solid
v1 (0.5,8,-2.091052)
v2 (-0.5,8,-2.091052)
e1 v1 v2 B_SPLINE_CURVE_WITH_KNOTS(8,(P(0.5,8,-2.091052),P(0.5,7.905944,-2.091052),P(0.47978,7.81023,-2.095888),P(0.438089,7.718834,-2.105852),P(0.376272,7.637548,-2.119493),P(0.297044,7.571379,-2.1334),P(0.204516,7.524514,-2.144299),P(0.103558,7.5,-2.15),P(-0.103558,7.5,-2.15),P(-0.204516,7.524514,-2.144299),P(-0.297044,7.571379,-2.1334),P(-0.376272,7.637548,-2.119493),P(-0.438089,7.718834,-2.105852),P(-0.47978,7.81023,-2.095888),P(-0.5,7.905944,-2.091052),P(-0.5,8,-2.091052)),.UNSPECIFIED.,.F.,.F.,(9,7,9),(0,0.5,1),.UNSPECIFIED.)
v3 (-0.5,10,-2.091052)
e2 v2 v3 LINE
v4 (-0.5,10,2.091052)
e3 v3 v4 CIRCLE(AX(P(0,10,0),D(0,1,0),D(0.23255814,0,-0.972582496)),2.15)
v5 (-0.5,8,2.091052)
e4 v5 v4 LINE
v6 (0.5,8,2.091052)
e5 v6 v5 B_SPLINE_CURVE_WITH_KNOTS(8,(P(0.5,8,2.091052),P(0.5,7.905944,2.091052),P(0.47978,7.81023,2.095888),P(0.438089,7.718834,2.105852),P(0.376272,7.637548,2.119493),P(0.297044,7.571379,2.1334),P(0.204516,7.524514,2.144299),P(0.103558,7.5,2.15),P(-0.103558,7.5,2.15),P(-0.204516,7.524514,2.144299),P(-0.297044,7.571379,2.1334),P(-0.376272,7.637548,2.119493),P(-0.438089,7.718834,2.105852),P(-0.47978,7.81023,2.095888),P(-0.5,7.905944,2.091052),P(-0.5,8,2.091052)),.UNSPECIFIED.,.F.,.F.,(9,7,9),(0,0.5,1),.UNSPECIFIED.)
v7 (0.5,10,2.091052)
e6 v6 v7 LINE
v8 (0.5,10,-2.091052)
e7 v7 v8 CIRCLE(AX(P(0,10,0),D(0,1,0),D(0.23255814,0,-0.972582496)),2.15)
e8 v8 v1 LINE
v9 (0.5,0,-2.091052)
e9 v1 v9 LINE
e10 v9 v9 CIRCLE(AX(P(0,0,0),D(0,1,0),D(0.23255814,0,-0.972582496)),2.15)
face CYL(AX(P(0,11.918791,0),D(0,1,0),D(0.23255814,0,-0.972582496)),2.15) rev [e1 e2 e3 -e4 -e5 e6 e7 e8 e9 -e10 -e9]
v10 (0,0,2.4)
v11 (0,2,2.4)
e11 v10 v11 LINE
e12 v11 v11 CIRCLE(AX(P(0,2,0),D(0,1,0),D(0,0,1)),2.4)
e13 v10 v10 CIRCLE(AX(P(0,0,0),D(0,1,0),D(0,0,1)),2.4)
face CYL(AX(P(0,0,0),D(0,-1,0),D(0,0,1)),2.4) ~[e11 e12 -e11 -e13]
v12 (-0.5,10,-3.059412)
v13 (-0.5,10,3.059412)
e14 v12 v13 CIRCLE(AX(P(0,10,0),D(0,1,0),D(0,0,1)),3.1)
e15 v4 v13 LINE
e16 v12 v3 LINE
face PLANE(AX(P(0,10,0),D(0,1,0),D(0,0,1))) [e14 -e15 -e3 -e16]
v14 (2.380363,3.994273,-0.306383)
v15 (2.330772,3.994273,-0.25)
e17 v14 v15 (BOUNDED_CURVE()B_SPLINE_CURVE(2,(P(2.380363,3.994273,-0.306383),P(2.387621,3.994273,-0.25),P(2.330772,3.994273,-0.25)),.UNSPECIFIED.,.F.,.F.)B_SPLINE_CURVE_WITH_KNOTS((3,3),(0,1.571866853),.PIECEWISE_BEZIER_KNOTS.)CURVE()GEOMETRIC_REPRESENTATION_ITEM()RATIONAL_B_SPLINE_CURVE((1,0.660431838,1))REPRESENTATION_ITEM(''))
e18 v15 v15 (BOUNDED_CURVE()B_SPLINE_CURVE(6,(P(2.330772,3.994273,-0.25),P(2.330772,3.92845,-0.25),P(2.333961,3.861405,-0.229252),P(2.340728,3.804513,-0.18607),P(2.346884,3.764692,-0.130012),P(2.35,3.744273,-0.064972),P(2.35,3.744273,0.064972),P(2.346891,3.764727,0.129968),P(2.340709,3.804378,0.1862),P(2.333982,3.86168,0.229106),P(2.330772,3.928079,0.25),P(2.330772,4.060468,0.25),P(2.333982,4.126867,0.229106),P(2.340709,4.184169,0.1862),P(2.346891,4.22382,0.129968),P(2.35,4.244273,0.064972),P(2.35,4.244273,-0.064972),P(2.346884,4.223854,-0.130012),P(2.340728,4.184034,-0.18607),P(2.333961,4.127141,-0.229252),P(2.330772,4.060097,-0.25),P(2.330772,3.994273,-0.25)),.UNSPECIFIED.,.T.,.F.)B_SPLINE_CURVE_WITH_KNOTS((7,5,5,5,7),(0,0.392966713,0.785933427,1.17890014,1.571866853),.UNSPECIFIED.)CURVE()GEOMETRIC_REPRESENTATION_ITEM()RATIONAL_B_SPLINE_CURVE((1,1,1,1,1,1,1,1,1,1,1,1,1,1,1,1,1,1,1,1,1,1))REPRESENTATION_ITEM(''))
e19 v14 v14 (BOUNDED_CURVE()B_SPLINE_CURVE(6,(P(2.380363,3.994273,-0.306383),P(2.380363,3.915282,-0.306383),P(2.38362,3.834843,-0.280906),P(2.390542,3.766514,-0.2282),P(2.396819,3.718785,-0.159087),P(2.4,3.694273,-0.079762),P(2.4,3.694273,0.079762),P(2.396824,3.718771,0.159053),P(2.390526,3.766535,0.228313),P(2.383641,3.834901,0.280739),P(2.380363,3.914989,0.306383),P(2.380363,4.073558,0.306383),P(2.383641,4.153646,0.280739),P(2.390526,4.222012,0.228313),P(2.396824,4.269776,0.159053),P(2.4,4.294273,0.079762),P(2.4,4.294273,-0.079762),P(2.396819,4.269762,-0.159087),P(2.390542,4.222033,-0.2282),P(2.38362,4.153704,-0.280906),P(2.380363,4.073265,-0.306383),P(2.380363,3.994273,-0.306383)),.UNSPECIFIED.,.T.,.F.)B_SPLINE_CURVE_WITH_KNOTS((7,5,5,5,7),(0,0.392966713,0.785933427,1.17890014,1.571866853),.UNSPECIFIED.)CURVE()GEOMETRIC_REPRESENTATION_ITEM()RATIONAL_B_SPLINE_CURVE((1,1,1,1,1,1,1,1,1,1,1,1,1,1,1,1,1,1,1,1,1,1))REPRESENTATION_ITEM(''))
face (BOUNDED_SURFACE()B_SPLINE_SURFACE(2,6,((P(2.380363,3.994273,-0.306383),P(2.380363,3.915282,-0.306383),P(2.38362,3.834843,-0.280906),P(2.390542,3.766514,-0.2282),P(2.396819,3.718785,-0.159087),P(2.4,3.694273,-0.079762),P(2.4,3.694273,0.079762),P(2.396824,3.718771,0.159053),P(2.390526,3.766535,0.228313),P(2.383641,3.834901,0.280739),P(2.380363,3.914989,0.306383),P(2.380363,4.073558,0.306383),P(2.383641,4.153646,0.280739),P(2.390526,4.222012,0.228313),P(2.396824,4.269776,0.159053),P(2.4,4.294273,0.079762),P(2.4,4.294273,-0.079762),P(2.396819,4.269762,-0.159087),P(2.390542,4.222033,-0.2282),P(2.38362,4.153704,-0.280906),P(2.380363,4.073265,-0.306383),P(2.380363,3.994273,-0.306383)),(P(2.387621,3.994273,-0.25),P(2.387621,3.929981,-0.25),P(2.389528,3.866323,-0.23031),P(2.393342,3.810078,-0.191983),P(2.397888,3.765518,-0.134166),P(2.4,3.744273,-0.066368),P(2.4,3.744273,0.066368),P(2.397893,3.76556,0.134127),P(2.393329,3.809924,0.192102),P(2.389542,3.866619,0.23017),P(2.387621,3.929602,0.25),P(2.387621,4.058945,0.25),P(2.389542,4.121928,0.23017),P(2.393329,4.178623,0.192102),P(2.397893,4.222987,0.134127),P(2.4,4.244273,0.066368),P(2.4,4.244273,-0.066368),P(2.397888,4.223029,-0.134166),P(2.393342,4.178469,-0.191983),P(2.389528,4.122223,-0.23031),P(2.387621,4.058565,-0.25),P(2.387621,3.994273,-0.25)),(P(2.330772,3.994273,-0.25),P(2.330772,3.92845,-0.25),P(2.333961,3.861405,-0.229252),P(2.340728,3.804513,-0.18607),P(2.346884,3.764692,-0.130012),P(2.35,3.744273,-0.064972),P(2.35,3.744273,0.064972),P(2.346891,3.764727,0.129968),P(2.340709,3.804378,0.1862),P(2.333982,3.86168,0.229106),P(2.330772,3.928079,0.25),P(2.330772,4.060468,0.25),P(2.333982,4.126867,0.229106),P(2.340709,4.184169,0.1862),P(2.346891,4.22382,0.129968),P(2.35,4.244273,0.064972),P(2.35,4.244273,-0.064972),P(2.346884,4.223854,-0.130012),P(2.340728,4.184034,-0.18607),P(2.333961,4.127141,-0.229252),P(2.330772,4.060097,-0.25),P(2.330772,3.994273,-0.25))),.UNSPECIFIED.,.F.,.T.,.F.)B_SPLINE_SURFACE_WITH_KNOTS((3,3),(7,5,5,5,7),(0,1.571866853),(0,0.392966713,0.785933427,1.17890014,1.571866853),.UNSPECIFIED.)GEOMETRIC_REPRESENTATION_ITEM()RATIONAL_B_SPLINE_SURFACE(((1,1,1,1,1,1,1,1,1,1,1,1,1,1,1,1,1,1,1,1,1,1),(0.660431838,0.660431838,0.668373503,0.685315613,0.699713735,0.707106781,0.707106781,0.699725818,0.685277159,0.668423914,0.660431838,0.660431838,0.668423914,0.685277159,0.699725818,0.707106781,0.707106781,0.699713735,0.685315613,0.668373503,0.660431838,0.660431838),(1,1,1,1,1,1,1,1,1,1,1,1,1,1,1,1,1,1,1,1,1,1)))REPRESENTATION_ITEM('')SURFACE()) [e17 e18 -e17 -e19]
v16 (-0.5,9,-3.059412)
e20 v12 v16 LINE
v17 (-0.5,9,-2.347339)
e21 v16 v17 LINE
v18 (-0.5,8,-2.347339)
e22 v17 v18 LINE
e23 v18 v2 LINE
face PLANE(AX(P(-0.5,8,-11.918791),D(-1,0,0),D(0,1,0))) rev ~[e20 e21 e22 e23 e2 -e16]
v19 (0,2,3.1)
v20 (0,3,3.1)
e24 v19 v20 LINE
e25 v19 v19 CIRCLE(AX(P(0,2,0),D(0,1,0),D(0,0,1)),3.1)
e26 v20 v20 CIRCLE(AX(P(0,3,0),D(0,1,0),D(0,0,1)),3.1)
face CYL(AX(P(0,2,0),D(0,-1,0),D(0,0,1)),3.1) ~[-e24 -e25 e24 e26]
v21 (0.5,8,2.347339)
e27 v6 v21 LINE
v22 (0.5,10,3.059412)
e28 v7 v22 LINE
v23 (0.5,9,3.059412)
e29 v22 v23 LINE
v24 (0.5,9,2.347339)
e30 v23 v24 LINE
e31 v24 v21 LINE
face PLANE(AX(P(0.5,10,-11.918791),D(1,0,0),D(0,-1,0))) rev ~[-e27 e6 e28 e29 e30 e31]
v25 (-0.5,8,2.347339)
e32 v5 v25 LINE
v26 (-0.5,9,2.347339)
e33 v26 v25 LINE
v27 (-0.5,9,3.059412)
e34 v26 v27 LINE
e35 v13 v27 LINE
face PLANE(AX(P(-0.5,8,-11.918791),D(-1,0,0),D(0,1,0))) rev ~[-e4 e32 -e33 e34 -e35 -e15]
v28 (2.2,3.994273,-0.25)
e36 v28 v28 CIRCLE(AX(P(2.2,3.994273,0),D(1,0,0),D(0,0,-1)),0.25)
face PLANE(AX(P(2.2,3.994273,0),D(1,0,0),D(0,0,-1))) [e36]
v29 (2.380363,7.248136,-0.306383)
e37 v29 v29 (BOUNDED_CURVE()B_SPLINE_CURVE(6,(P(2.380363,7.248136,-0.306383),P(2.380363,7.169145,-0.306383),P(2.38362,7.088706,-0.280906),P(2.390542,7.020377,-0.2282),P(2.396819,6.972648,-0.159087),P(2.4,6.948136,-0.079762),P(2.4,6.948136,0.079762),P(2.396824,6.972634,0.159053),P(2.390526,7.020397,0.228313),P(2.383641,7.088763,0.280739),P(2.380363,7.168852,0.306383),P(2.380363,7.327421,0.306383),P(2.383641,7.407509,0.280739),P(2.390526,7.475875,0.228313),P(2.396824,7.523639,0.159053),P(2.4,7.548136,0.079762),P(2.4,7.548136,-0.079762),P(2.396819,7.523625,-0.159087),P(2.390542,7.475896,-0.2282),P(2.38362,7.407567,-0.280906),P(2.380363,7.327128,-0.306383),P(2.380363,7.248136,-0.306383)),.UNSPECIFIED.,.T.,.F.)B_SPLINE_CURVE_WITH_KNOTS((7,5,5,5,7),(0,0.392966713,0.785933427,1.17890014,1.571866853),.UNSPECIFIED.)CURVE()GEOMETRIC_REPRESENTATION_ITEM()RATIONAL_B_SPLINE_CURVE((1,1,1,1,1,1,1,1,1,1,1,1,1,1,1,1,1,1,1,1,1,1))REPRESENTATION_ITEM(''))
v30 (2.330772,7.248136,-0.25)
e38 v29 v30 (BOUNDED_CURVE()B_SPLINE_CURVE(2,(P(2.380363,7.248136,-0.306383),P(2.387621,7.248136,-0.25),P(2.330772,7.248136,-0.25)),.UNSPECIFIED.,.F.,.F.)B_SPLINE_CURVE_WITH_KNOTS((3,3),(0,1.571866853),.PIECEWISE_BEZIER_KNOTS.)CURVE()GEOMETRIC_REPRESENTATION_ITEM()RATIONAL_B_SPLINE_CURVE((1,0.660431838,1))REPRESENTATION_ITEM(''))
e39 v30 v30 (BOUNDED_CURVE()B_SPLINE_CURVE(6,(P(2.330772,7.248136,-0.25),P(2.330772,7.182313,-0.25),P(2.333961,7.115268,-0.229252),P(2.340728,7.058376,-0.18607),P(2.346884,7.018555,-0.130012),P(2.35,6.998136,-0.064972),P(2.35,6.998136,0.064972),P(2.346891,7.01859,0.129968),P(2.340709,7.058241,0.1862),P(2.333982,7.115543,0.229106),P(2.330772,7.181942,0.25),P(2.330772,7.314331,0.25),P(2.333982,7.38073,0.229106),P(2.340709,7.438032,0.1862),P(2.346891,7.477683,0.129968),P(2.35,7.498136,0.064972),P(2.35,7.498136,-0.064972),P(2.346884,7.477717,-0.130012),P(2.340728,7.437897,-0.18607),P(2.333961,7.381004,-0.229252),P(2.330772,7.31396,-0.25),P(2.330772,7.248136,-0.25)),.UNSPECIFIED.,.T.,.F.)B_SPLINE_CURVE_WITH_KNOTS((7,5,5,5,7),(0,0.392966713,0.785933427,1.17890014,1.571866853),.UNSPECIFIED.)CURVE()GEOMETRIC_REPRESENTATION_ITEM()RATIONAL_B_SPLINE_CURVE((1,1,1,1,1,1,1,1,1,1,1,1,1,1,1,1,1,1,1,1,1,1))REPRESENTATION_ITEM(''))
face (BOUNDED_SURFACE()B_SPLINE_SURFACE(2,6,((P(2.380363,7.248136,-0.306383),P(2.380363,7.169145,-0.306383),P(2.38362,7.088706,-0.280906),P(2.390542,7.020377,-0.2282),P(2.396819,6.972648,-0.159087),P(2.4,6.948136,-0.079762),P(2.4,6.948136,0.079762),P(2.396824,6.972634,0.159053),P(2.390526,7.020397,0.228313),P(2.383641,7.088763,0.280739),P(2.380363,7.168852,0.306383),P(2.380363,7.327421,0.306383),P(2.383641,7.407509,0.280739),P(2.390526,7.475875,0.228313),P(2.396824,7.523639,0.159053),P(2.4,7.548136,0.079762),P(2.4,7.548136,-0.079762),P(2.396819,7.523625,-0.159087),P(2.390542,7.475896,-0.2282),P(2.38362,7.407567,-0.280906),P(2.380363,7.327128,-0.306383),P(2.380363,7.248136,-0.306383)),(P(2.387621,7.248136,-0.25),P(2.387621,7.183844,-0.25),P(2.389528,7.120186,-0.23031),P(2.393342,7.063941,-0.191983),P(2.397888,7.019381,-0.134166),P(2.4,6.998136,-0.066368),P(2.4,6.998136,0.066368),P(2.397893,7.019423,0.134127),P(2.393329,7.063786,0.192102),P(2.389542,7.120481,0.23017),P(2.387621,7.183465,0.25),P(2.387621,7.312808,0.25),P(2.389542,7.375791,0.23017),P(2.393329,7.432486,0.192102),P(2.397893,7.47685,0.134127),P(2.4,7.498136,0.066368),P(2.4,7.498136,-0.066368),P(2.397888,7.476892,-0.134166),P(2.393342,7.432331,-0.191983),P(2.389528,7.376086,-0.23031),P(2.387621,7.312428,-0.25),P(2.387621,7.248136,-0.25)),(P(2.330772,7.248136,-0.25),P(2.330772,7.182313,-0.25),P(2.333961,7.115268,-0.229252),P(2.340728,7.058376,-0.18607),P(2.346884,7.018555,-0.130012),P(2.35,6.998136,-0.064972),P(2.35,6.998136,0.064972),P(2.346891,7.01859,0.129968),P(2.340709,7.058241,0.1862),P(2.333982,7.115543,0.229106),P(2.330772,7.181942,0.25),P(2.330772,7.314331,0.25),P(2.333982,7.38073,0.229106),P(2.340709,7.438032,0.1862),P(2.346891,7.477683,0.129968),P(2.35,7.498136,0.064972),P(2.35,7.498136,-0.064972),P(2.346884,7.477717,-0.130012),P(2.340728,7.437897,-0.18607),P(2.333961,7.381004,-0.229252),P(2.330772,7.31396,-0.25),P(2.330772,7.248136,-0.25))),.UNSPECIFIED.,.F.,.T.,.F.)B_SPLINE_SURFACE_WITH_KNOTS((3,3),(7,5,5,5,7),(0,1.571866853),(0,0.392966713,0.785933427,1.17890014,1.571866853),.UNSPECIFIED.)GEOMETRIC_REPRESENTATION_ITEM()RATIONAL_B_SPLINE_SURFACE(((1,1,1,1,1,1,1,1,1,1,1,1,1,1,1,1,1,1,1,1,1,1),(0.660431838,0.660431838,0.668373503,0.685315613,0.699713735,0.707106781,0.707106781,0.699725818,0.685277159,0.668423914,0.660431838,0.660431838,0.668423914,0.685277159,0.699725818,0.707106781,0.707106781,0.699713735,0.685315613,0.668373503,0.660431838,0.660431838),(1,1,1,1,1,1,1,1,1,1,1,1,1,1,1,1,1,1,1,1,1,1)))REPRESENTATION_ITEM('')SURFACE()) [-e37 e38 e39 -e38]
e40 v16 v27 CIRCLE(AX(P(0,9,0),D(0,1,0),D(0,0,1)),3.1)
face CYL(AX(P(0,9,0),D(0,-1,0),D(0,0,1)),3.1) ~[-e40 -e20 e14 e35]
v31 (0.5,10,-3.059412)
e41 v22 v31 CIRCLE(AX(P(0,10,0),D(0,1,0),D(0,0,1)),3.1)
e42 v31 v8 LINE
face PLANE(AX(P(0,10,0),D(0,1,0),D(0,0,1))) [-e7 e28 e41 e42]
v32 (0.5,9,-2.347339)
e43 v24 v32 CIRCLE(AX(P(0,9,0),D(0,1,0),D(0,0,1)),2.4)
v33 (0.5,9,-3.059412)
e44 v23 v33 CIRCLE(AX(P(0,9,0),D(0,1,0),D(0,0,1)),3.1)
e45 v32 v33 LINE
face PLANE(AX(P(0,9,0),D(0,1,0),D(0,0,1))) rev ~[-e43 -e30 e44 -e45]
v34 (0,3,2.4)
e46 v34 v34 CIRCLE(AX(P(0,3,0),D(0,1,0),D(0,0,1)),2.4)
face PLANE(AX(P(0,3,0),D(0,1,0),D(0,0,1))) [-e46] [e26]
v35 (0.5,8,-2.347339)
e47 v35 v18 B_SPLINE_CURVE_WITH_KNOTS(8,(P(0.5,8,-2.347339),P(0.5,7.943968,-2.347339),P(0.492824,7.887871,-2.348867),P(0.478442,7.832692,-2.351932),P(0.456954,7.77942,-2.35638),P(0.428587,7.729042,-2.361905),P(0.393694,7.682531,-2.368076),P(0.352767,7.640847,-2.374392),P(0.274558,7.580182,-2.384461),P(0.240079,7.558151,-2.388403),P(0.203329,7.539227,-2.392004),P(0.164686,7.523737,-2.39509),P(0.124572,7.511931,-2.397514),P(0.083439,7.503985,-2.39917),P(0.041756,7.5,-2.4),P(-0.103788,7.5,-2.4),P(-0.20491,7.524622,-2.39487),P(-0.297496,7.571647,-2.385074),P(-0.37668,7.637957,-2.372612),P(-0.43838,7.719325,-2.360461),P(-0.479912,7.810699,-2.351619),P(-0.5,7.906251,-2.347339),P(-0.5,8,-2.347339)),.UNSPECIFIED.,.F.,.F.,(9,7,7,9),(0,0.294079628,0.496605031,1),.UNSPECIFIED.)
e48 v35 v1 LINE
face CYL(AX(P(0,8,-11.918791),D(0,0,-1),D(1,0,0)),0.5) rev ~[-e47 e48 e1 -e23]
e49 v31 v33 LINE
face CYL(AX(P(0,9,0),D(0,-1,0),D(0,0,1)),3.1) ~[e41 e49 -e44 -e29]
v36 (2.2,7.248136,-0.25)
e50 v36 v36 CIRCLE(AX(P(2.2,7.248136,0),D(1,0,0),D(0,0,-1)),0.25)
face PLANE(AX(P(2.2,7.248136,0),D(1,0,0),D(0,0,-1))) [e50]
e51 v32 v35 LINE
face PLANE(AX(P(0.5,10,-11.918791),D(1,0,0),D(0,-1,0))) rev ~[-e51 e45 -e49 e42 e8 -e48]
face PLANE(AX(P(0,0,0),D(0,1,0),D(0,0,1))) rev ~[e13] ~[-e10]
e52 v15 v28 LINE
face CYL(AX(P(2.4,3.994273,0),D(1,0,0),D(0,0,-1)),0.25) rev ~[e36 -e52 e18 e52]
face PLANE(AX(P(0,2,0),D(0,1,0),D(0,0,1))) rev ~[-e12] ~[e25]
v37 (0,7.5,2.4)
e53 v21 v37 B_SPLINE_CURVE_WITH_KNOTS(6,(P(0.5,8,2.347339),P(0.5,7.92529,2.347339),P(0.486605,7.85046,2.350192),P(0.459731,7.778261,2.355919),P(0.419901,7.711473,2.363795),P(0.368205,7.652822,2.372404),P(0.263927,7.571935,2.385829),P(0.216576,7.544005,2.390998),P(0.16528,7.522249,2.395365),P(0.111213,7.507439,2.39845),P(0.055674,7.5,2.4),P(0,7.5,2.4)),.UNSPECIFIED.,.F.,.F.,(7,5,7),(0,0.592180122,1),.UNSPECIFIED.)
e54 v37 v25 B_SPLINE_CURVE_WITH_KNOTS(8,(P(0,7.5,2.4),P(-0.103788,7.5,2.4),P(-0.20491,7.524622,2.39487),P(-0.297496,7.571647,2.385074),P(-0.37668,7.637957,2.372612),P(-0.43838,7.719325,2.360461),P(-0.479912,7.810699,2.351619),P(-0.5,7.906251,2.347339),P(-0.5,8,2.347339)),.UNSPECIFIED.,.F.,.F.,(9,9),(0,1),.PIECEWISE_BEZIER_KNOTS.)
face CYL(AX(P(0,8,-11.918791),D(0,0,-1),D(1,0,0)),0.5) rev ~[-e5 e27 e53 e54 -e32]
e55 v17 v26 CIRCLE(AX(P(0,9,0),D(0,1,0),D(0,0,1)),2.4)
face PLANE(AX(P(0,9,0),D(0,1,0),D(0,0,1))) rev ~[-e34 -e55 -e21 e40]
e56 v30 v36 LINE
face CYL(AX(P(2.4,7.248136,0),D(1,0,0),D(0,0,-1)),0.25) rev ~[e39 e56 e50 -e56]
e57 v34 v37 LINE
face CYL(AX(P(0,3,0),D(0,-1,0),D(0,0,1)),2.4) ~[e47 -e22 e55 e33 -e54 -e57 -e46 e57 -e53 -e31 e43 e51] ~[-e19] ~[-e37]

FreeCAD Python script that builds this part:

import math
import FreeCAD as App
import Part
import Sketcher
from FreeCAD import Vector


def edges_at(feature, points):
    """Names of the edges that pass closest to the given points."""
    edges = feature.Shape.Edges
    near = lambda p: min(range(len(edges)), key=lambda i: edges[i].distToShape(Part.Vertex(*p))[0])
    return sorted({f"Edge{near(p) + 1}" for p in points})

doc = App.newDocument("Part")
body = doc.addObject("PartDesign::Body", "Body")

# Sketch on XZ plane
sketch1 = body.newObject("Sketcher::SketchObject", "Sketch")
sketch1.AttachmentSupport = (doc.getObject("XZ_Plane"), [""])
sketch1.MapMode = "FlatFace"
sketch1.addGeometry(Part.Circle(Vector(0, 0, 0), Vector(0, 0, 1), 2.4), False)
sketch1.addConstraint([
    Sketcher.Constraint("Coincident", 0, 3, -1, 1),
    Sketcher.Constraint("Diameter", 0, 4.8),
])
pad1 = body.newObject("PartDesign::Pad", "Pad")
pad1.Profile = sketch1
pad1.Length = 2
pad1.Reversed = True

# Sketch on XZ plane
sketch2 = body.newObject("Sketcher::SketchObject", "Sketch001")
sketch2.AttachmentSupport = (doc.getObject("XZ_Plane"), [""])
sketch2.MapMode = "FlatFace"
sketch2.AttachmentOffset = App.Placement(Vector(0, 0, -2), App.Rotation())
sketch2.addGeometry(Part.Circle(Vector(0, 0, 0), Vector(0, 0, 1), 3.1), False)
sketch2.addConstraint([
    Sketcher.Constraint("Coincident", 0, 3, -1, 1),
    Sketcher.Constraint("Diameter", 0, 6.2),
])
pad2 = body.newObject("PartDesign::Pad", "Pad001")
pad2.Profile = sketch2
pad2.Length = 1
pad2.Reversed = True

# Sketch on XZ plane
sketch3 = body.newObject("Sketcher::SketchObject", "Sketch002")
sketch3.AttachmentSupport = (doc.getObject("XZ_Plane"), [""])
sketch3.MapMode = "FlatFace"
sketch3.AttachmentOffset = App.Placement(Vector(0, 0, -3), App.Rotation())
sketch3.addGeometry(Part.Circle(Vector(0, 0, 0), Vector(0, 0, 1), 2.4), False)
sketch3.addConstraint([
    Sketcher.Constraint("Coincident", 0, 3, -1, 1),
    Sketcher.Constraint("Diameter", 0, 4.8),
])
pad3 = body.newObject("PartDesign::Pad", "Pad002")
pad3.Profile = sketch3
pad3.Length = 6
pad3.Reversed = True

# Sketch on XZ plane
sketch4 = body.newObject("Sketcher::SketchObject", "Sketch003")
sketch4.AttachmentSupport = (doc.getObject("XZ_Plane"), [""])
sketch4.MapMode = "FlatFace"
sketch4.AttachmentOffset = App.Placement(Vector(0, 0, -9), App.Rotation())
sketch4.addGeometry(Part.Circle(Vector(0, 0, 0), Vector(0, 0, 1), 3.1), False)
sketch4.addConstraint([
    Sketcher.Constraint("Coincident", 0, 3, -1, 1),
    Sketcher.Constraint("Diameter", 0, 6.2),
])
pad4 = body.newObject("PartDesign::Pad", "Pad003")
pad4.Profile = sketch4
pad4.Length = 1
pad4.Reversed = True

# Sketch on XY plane
sketch5 = body.newObject("Sketcher::SketchObject", "Sketch004")
sketch5.AttachmentSupport = (doc.getObject("XY_Plane"), [""])
sketch5.MapMode = "FlatFace"
sketch5.addGeometry([
    Part.LineSegment(Vector(0.5, 8, 0), Vector(0.5, 10, 0)),
    Part.ArcOfCircle(Part.Circle(Vector(0, 10, 0), Vector(0, 0, 1), 0.5), math.radians(0), math.radians(180)),
    Part.LineSegment(Vector(-0.5, 10, 0), Vector(-0.5, 8, 0)),
    Part.ArcOfCircle(Part.Circle(Vector(0, 8, 0), Vector(0, 0, 1), 0.5), math.radians(180), math.radians(360)),
], False)
sketch5.addConstraint([
    Sketcher.Constraint("Tangent", 0, 2, 1, 1),
    Sketcher.Constraint("Tangent", 1, 2, 2, 1),
    Sketcher.Constraint("Tangent", 2, 2, 3, 1),
    Sketcher.Constraint("Tangent", 3, 2, 0, 1),
    Sketcher.Constraint("Vertical", 0),
    Sketcher.Constraint("Vertical", 2),
    Sketcher.Constraint("PointOnObject", 1, 3, -2),
    Sketcher.Constraint("Radius", 1, 0.5),
    Sketcher.Constraint("DistanceY", 0, 1, 0, 2, 2.0),
    Sketcher.Constraint("DistanceY", -1, 1, 1, 3, 10.0),
])
pocket1 = body.newObject("PartDesign::Pocket", "Pocket")
pocket1.Profile = sketch5
pocket1.Type = "ThroughAll"
pocket1.Midplane = True

# Sketch on YZ plane
sketch6 = body.newObject("Sketcher::SketchObject", "Sketch005")
sketch6.AttachmentSupport = (doc.getObject("YZ_Plane"), [""])
sketch6.MapMode = "FlatFace"
sketch6.AttachmentOffset = App.Placement(Vector(0, 0, 2.4), App.Rotation())
sketch6.addGeometry([
    Part.Circle(Vector(7.248136, 0, 0), Vector(0, 0, 1), 0.25),
    Part.Circle(Vector(3.994273, 0, 0), Vector(0, 0, 1), 0.25),
], False)
sketch6.addConstraint([
    Sketcher.Constraint("Equal", 0, 1),
    Sketcher.Constraint("PointOnObject", 0, 3, -1),
    Sketcher.Constraint("PointOnObject", 1, 3, -1),
    Sketcher.Constraint("Diameter", 0, 0.5),
    Sketcher.Constraint("DistanceX", -1, 1, 0, 3, 7.248136),
    Sketcher.Constraint("DistanceX", -1, 1, 1, 3, 3.994273),
])
pocket2 = body.newObject("PartDesign::Pocket", "Pocket001")
pocket2.Profile = sketch6
pocket2.Length = 0.2
doc.recompute()

fillet = body.newObject("PartDesign::Fillet", "Fillet")
fillet.Base = (pocket2, edges_at(pocket2, [(2.387, 7.248, 0.25)]))
fillet.Radius = 0.05
doc.recompute()

fillet2 = body.newObject("PartDesign::Fillet", "Fillet001")
fillet2.Base = (fillet, edges_at(fillet, [(2.387, 3.994, 0.25)]))
fillet2.Radius = 0.05

# Sketch on XZ plane
sketch7 = body.newObject("Sketcher::SketchObject", "Sketch006")
sketch7.AttachmentSupport = (doc.getObject("XZ_Plane"), [""])
sketch7.MapMode = "FlatFace"
sketch7.addGeometry(Part.Circle(Vector(0, 0, 0), Vector(0, 0, 1), 2.15), False)
sketch7.addConstraint([
    Sketcher.Constraint("Coincident", 0, 3, -1, 1),
    Sketcher.Constraint("Diameter", 0, 4.3),
])
pocket3 = body.newObject("PartDesign::Pocket", "Pocket002")
pocket3.Profile = sketch7
pocket3.Type = "ThroughAll"
pocket3.Midplane = True

doc.recompute()
